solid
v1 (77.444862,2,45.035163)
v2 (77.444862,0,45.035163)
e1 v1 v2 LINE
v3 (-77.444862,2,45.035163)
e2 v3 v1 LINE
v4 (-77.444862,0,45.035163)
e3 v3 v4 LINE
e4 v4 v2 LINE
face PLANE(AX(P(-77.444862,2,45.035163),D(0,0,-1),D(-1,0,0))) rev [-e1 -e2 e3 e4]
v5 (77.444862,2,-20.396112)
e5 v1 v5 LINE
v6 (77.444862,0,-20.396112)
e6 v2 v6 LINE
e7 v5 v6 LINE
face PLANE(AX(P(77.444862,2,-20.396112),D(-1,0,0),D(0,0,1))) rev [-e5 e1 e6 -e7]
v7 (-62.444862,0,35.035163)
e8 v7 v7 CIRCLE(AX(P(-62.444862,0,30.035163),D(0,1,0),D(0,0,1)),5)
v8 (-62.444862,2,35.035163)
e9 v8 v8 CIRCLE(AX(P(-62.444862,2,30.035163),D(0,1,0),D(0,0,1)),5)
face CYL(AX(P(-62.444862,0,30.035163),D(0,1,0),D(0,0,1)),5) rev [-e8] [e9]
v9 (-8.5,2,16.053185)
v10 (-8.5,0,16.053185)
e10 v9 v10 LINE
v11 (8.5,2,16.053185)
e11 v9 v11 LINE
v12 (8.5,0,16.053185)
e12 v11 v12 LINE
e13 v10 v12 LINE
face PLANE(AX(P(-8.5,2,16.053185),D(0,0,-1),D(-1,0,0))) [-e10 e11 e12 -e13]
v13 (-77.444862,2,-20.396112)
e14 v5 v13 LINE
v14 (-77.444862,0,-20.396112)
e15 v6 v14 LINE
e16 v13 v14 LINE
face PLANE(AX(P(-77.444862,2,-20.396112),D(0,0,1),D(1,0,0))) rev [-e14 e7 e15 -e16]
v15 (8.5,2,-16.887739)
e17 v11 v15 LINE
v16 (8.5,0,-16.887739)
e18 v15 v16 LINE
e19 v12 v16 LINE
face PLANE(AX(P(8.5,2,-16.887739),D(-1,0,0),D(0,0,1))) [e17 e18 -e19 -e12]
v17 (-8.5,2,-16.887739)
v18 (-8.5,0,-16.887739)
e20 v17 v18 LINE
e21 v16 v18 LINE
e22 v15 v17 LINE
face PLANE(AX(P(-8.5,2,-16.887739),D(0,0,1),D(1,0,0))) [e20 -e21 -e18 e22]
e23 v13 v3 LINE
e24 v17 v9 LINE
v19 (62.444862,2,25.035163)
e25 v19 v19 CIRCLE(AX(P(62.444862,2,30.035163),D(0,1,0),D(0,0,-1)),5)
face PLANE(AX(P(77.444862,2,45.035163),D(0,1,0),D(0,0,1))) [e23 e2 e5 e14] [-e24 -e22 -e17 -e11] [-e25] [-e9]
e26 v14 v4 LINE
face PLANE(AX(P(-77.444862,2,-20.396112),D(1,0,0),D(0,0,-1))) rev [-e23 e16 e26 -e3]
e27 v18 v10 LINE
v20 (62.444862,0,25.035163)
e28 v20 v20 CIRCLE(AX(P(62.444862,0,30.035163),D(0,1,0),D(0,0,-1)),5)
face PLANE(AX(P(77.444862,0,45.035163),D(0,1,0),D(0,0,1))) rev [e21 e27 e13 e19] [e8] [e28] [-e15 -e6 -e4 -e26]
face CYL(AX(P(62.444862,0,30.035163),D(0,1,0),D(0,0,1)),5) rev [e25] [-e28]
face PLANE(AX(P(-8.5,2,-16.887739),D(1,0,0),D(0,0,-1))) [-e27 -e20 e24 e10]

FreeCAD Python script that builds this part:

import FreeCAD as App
import Part
import Sketcher

V = App.Vector


def add_polygon(sketch, points):
    """Adds a closed chain of lines whose ends are joined by coincident constraints."""
    first, n = sketch.GeometryCount, len(points)
    for a, b in zip(points, points[1:] + points[:1]):
        sketch.addGeometry(Part.LineSegment(App.Vector(*a, 0), App.Vector(*b, 0)), False)
    for i in range(n):
        sketch.addConstraint(Sketcher.Constraint("Coincident", first + i, 2, first + (i + 1) % n, 1))

doc = App.newDocument("Part")
body = doc.addObject("PartDesign::Body", "Body")

sketch1 = body.newObject("Sketcher::SketchObject", "Sketch")
sketch1.AttachmentSupport = (doc.getObject("XZ_Plane"), [""])
sketch1.MapMode = "FlatFace"
add_polygon(sketch1, [(-77, -20), (-77, 45), (77, 45), (77, -20)])
add_polygon(sketch1, [(8, 16), (-8, 16), (-8, -17), (8, -17)])
sketch1.addConstraint(Sketcher.Constraint("Vertical", 0))
sketch1.addConstraint(Sketcher.Constraint("Horizontal", 1))
sketch1.addConstraint(Sketcher.Constraint("Vertical", 2))
sketch1.addConstraint(Sketcher.Constraint("Horizontal", 3))
sketch1.addConstraint(Sketcher.Constraint("Horizontal", 4))
sketch1.addConstraint(Sketcher.Constraint("Vertical", 5))
sketch1.addConstraint(Sketcher.Constraint("Horizontal", 6))
sketch1.addConstraint(Sketcher.Constraint("Vertical", 7))
sketch1.addConstraint(Sketcher.Constraint("DistanceX", 4, 2, 4, 1, 17.0))
sketch1.addConstraint(Sketcher.Constraint("DistanceX", 4, 2, -1, 1, 8.5))
sketch1.addConstraint(Sketcher.Constraint("DistanceX", 1, 1, 1, 2, 154.889724))
sketch1.addConstraint(Sketcher.Constraint("DistanceY", 0, 1, 0, 2, 65.431276))
sketch1.addConstraint(Sketcher.Constraint("DistanceY", 5, 2, 5, 1, 32.940924))
sketch1.addConstraint(Sketcher.Constraint("DistanceX", 0, 2, -1, 1, 77.444862))
sketch1.addConstraint(Sketcher.Constraint("DistanceY", 5, 2, -1, 1, 16.887739))
sketch1.addConstraint(Sketcher.Constraint("DistanceY", 4, 2, 0, 2, 28.981979))
pad1 = body.newObject("PartDesign::Pad", "Pad")
pad1.Profile = sketch1
pad1.Length = 2
pad1.Reversed = True

sketch2 = body.newObject("Sketcher::SketchObject", "Sketch001")
sketch2.AttachmentSupport = (doc.getObject("XZ_Plane"), [""])
sketch2.MapMode = "FlatFace"
sketch2.AttachmentOffset = App.Placement(V(0, 0, -2), App.Rotation())
sketch2.addGeometry(Part.Circle(V(-62, 30, 0), V(0, 0, 1), 5), False)
sketch2.addGeometry(Part.Circle(V(62, 30, 0), V(0, 0, 1), 5), False)
sketch2.addConstraint(Sketcher.Constraint("Equal", 0, 1))
sketch2.addConstraint(Sketcher.Constraint("Symmetric", 0, 3, 1, 3, -2))
sketch2.addConstraint(Sketcher.Constraint("Diameter", 0, 10.0))
sketch2.addConstraint(Sketcher.Constraint("DistanceX", 0, 3, -1, 1, 62.444862))
sketch2.addConstraint(Sketcher.Constraint("DistanceY", -1, 1, 0, 3, 30.035163))
pocket1 = body.newObject("PartDesign::Pocket", "Pocket")
pocket1.Profile = sketch2
pocket1.Type = "ThroughAll"
pocket1.Reversed = True

doc.recompute()
